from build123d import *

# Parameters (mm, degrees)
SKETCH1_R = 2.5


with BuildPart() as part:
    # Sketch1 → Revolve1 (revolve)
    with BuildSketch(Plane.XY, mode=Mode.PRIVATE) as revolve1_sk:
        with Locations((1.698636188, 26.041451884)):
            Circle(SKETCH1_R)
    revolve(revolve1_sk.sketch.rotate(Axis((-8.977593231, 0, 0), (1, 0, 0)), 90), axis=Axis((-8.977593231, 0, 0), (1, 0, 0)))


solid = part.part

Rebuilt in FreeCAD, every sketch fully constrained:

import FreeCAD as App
import Part
import Sketcher
Q = App.Units.Quantity

doc = App.newDocument("Part")
body = doc.addObject("PartDesign::Body", "Body")

# Sketch on XY plane
sketch1 = body.newObject("Sketcher::SketchObject", "Sketch")
sketch1.AttachmentSupport = (doc.getObject("XY_Plane"), [""])
sketch1.MapMode = "FlatFace"
sketch1.addGeometry(Part.Circle(App.Vector(1.698636, 26.041452, 0), App.Vector(0, 0, 1), 2.5), False)
sketch1.addConstraint([
    Sketcher.Constraint("Diameter", 0, Q("5 mm")),
    Sketcher.Constraint("DistanceY", -1, 1, 0, 3, Q("26.041452 mm")),
    Sketcher.Constraint("DistanceX", -1, 1, 0, 3, Q("1.698636 mm")),
])
revolution = body.newObject("PartDesign::Revolution", "Revolution")
revolution.Profile = sketch1
revolution.ReferenceAxis = (sketch1, ["H_Axis"])
revolution.Angle = 360

doc.recompute()
